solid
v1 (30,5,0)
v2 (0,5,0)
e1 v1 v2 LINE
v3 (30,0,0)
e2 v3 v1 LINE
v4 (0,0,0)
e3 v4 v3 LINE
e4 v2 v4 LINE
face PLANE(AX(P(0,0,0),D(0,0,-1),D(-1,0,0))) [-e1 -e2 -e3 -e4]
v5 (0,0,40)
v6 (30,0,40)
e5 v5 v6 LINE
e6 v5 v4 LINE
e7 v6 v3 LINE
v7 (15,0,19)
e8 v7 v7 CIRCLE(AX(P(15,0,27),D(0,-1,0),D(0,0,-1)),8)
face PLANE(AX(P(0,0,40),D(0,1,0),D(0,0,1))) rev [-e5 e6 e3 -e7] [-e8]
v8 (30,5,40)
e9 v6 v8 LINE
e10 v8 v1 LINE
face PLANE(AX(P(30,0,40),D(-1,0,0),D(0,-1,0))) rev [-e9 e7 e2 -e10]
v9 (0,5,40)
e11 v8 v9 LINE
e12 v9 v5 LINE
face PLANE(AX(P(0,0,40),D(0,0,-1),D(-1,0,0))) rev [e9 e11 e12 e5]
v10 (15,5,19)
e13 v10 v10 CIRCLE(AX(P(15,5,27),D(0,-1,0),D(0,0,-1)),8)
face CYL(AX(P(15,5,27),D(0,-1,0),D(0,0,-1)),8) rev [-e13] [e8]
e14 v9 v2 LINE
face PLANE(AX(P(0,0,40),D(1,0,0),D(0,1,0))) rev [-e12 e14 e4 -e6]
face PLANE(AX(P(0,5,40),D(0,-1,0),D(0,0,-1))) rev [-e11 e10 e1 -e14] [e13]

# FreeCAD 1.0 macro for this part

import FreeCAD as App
import Part
import Sketcher

V = App.Vector
Q = App.Units.Quantity

doc = App.newDocument("Part")
body = doc.addObject("PartDesign::Body", "Body")

# Sketch on XY plane
sketch1 = doc.addObject("Sketcher::SketchObject", "Sketch")
body.addObject(sketch1)
sketch1.AttachmentSupport = (doc.XY_Plane, [""])
sketch1.MapMode = "FlatFace"
sketch1.addGeometry([
    Part.LineSegment(V(0, 5, 0), V(0, 0, 0)),
    Part.LineSegment(V(0, 0, 0), V(30, 0, 0)),
    Part.LineSegment(V(30, 0, 0), V(30, 5, 0)),
    Part.LineSegment(V(30, 5, 0), V(0, 5, 0)),
], False)
sketch1.addConstraint([
    Sketcher.Constraint("Coincident", 0, 2, 1, 1),
    Sketcher.Constraint("Coincident", 1, 2, 2, 1),
    Sketcher.Constraint("Coincident", 2, 2, 3, 1),
    Sketcher.Constraint("Coincident", 3, 2, 0, 1),
    Sketcher.Constraint("Vertical", 0),
    Sketcher.Constraint("Horizontal", 1),
    Sketcher.Constraint("Vertical", 2),
    Sketcher.Constraint("Horizontal", 3),
    Sketcher.Constraint("Coincident", 0, 2, -1, 1),
    Sketcher.Constraint("DistanceX", 1, 1, 1, 2, Q("30 mm")),
    Sketcher.Constraint("DistanceY", 0, 2, 0, 1, Q("5 mm")),
])
pad1 = doc.addObject("PartDesign::Pad", "Pad")
body.addObject(pad1)
pad1.Profile = sketch1
pad1.Length = 40

# Sketch on XZ plane
sketch2 = doc.addObject("Sketcher::SketchObject", "Sketch001")
body.addObject(sketch2)
sketch2.AttachmentSupport = (doc.XZ_Plane, [""])
sketch2.MapMode = "FlatFace"
sketch2.addGeometry(Part.Circle(V(15, 27, 0), V(0, 0, 1), 8), False)
sketch2.addConstraint([
    Sketcher.Constraint("Diameter", 0, Q("16 mm")),
    Sketcher.Constraint("DistanceX", -1, 1, 0, 3, Q("15 mm")),
    Sketcher.Constraint("DistanceY", -1, 1, 0, 3, Q("27 mm")),
])
pocket1 = doc.addObject("PartDesign::Pocket", "Pocket")
body.addObject(pocket1)
pocket1.Profile = sketch2
pocket1.Type = "ThroughAll"

doc.recompute()
